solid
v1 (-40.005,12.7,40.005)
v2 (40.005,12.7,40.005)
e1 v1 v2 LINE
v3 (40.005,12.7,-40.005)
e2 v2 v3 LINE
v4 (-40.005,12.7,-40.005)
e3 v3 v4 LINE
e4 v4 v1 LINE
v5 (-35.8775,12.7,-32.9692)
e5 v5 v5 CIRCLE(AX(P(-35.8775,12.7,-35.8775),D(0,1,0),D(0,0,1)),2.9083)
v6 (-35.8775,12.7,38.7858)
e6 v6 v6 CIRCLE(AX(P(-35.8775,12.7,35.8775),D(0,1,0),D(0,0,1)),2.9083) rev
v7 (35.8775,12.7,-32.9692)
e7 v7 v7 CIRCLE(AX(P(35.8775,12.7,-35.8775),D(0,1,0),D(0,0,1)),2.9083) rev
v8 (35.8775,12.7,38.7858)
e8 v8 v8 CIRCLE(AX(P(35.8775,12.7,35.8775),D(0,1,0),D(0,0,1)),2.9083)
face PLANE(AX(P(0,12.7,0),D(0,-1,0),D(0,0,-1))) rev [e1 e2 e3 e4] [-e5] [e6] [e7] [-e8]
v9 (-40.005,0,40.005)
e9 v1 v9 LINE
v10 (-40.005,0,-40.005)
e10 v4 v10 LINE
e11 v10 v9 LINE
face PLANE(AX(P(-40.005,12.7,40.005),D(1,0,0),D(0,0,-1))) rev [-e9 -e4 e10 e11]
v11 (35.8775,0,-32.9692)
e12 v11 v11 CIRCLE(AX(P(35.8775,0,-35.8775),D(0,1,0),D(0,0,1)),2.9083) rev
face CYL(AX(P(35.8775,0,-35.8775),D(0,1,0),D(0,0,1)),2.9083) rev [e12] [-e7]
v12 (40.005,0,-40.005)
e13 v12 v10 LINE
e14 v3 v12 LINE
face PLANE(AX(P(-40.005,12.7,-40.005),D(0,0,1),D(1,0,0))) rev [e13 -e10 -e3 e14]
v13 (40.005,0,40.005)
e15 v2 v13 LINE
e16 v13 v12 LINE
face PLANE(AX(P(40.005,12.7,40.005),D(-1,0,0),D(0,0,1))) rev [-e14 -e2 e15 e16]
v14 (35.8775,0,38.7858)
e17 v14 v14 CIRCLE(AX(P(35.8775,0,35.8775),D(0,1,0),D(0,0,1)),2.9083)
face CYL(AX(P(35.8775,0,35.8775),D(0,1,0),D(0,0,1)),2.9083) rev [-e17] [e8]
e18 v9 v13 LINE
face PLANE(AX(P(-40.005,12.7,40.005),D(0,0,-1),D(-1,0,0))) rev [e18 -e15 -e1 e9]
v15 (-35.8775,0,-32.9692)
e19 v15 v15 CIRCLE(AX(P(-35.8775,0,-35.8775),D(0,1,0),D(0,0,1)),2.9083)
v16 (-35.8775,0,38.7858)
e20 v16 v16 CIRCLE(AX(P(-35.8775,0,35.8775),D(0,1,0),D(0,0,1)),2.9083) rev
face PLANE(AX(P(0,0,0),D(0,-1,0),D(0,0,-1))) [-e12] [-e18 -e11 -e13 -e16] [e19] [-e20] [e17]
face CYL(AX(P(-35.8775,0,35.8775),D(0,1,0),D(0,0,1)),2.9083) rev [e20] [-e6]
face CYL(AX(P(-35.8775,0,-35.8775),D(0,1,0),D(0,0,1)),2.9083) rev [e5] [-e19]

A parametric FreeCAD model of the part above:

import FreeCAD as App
import Part
import Sketcher

V = App.Vector
Q = App.Units.Quantity


def add_polygon(sketch, points):
    """Adds a closed chain of lines whose ends are joined by coincident constraints."""
    first, n = sketch.GeometryCount, len(points)
    for a, b in zip(points, points[1:] + points[:1]):
        sketch.addGeometry(Part.LineSegment(App.Vector(*a, 0), App.Vector(*b, 0)), False)
    for i in range(n):
        sketch.addConstraint(Sketcher.Constraint("Coincident", first + i, 2, first + (i + 1) % n, 1))

doc = App.newDocument("Part")
body = doc.addObject("PartDesign::Body", "Body")

# Sketch on XZ plane
sketch1 = body.newObject("Sketcher::SketchObject", "Sketch")
sketch1.AttachmentSupport = (doc.getObject("XZ_Plane"), [""])
sketch1.MapMode = "FlatFace"
add_polygon(sketch1, [(-40, -40), (-40, 40), (40, 40), (40, -40)])  # lines 0-3
sketch1.addConstraint(Sketcher.Constraint("Vertical", 0))
sketch1.addConstraint(Sketcher.Constraint("Horizontal", 1))
sketch1.addConstraint(Sketcher.Constraint("Vertical", 2))
sketch1.addConstraint(Sketcher.Constraint("Horizontal", 3))
sketch1.addConstraint(Sketcher.Constraint("Symmetric", 0, 2, 2, 2, -1, 1))
sketch1.addConstraint(Sketcher.Constraint("Equal", 3, 0))
sketch1.addConstraint(Sketcher.Constraint("DistanceX", 1, 1, 1, 2, Q("3.15 in")))
pad1 = body.newObject("PartDesign::Pad", "Pad")
pad1.Profile = sketch1
pad1.Length = Q("0.5 in")
pad1.Reversed = True

# Sketch on XZ plane
sketch2 = body.newObject("Sketcher::SketchObject", "Sketch001")
sketch2.AttachmentSupport = (doc.getObject("XZ_Plane"), [""])
sketch2.MapMode = "FlatFace"
sketch2.AttachmentOffset = App.Placement(V(0, 0, -0.5 * 25.4), App.Rotation())
sketch2.addGeometry(Part.Circle(V(-35.9, -35.9, 0), V(0, 0, 1), 2.9), False)
sketch2.addGeometry(Part.Circle(V(35.9, -35.9, 0), V(0, 0, 1), 2.9), False)
sketch2.addGeometry(Part.Circle(V(-35.9, 35.9, 0), V(0, 0, 1), 2.9), False)
sketch2.addGeometry(Part.Circle(V(35.9, 35.9, 0), V(0, 0, 1), 2.9), False)
sketch2.addConstraint(Sketcher.Constraint("Equal", 0, 1))
sketch2.addConstraint(Sketcher.Constraint("Equal", 1, 2))
sketch2.addConstraint(Sketcher.Constraint("Equal", 2, 3))
sketch2.addConstraint(Sketcher.Constraint("Symmetric", 1, 3, 2, 3, -1, 1))
sketch2.addConstraint(Sketcher.Constraint("Symmetric", 0, 3, 3, 3, -1, 1))
sketch2.addConstraint(Sketcher.Constraint("Symmetric", 0, 3, 1, 3, -2))
sketch2.addConstraint(Sketcher.Constraint("Diameter", 0, Q("0.229 in")))
sketch2.addConstraint(Sketcher.Constraint("DistanceX", 0, 3, 1, 3, Q("2.825 in")))
sketch2.addConstraint(Sketcher.Constraint("DistanceY", 0, 3, 2, 3, Q("2.825 in")))
pocket1 = body.newObject("PartDesign::Pocket", "Pocket")
pocket1.Profile = sketch2
pocket1.Type = "ThroughAll"
pocket1.Reversed = True

doc.recompute()
